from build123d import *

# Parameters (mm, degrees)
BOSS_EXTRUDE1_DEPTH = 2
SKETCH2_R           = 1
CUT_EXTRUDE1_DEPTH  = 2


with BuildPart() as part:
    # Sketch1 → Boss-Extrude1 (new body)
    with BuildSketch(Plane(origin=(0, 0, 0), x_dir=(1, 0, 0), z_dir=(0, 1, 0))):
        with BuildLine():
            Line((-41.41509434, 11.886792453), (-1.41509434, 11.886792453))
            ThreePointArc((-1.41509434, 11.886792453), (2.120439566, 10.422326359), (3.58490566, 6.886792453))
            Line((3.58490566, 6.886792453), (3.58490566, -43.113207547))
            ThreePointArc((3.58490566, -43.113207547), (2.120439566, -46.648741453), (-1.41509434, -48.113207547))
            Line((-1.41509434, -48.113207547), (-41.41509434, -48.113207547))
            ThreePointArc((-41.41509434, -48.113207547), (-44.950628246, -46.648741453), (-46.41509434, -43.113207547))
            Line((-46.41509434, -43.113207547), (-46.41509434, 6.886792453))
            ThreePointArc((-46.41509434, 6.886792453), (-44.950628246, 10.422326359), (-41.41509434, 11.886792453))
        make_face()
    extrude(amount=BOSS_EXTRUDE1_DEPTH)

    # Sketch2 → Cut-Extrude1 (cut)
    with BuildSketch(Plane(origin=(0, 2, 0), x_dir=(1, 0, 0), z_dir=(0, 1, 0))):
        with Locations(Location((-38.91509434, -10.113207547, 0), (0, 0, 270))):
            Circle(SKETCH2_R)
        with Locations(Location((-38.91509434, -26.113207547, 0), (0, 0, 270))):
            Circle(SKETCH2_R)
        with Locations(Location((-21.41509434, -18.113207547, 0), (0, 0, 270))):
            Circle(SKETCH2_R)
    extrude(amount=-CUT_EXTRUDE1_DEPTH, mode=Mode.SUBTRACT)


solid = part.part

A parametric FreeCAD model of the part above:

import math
import FreeCAD as App
import Part
import Sketcher

V = App.Vector
Q = App.Units.Quantity

doc = App.newDocument("Part")
body = doc.addObject("PartDesign::Body", "Body")

# Sketch on XZ plane
sketch1 = body.newObject("Sketcher::SketchObject", "Sketch")
sketch1.AttachmentSupport = (doc.getObject("XZ_Plane"), [""])
sketch1.MapMode = "FlatFace"
sketch1.addGeometry([
    Part.LineSegment(V(-1, -12, 0), V(-41, -12, 0)),  # 0
    Part.ArcOfCircle(Part.Circle(V(-41, -7, 0), V(0, 0, 1), 5), math.radians(180), math.radians(270)),  # 1
    Part.LineSegment(V(-46, -7, 0), V(-46, 43, 0)),  # 2
    Part.ArcOfCircle(Part.Circle(V(-41, 43, 0), V(0, 0, 1), 5), math.radians(90), math.radians(180)),  # 3
    Part.LineSegment(V(-41, 48, 0), V(-1, 48, 0)),  # 4
    Part.ArcOfCircle(Part.Circle(V(-1, 43, 0), V(0, 0, 1), 5), math.radians(0), math.radians(90)),  # 5
    Part.LineSegment(V(4, 43, 0), V(4, -7, 0)),  # 6
    Part.ArcOfCircle(Part.Circle(V(-1, -7, 0), V(0, 0, 1), 5), math.radians(-90), math.radians(0)),  # 7
], False)
sketch1.addConstraint([
    Sketcher.Constraint("Tangent", 0, 2, 1, 2),
    Sketcher.Constraint("Tangent", 1, 1, 2, 1),
    Sketcher.Constraint("Tangent", 2, 2, 3, 2),
    Sketcher.Constraint("Tangent", 3, 1, 4, 1),
    Sketcher.Constraint("Tangent", 4, 2, 5, 2),
    Sketcher.Constraint("Tangent", 5, 1, 6, 1),
    Sketcher.Constraint("Tangent", 6, 2, 7, 2),
    Sketcher.Constraint("Tangent", 7, 1, 0, 1),
    Sketcher.Constraint("Horizontal", 0),
    Sketcher.Constraint("Vertical", 2),
    Sketcher.Constraint("Horizontal", 4),
    Sketcher.Constraint("Vertical", 6),
    Sketcher.Constraint("Equal", 1, 3),
    Sketcher.Constraint("Equal", 3, 5),
    Sketcher.Constraint("Equal", 5, 7),
    Sketcher.Constraint("Radius", 1, Q("5 mm")),
    Sketcher.Constraint("DistanceX", 0, 2, 0, 1, Q("40 mm")),
    Sketcher.Constraint("DistanceY", 2, 1, 2, 2, Q("50 mm")),
    Sketcher.Constraint("DistanceX", 1, 3, -1, 1, Q("41.415094 mm")),
    Sketcher.Constraint("DistanceY", 1, 3, -1, 1, Q("6.886792 mm")),
])
pad1 = body.newObject("PartDesign::Pad", "Pad")
pad1.Profile = sketch1
pad1.Length = 2
pad1.Reversed = True

# Sketch on XZ plane
sketch2 = body.newObject("Sketcher::SketchObject", "Sketch001")
sketch2.AttachmentSupport = (doc.getObject("XZ_Plane"), [""])
sketch2.MapMode = "FlatFace"
sketch2.AttachmentOffset = App.Placement(V(0, 0, -2), App.Rotation())
sketch2.addGeometry([
    Part.Circle(V(-38.9, 10.1, 0), V(0, 0, 1), 1),
    Part.Circle(V(-38.9, 26.1, 0), V(0, 0, 1), 1),
    Part.Circle(V(-21.4, 18.1, 0), V(0, 0, 1), 1),
], False)
sketch2.addConstraint([
    Sketcher.Constraint("Equal", 0, 1),
    Sketcher.Constraint("Equal", 1, 2),
    Sketcher.Constraint("Vertical", 0, 3, 1, 3),
    Sketcher.Constraint("Diameter", 0, Q("2 mm")),
    Sketcher.Constraint("DistanceY", 0, 3, 1, 3, Q("16 mm")),
    Sketcher.Constraint("DistanceY", 0, 3, 2, 3, Q("8 mm")),
    Sketcher.Constraint("DistanceX", 0, 3, 2, 3, Q("17.5 mm")),
    Sketcher.Constraint("DistanceX", 0, 3, -1, 1, Q("38.915094 mm")),
    Sketcher.Constraint("DistanceY", -1, 1, 0, 3, Q("10.113208 mm")),
])
pocket1 = body.newObject("PartDesign::Pocket", "Pocket")
pocket1.Profile = sketch2
pocket1.Length = 2
pocket1.Reversed = True

doc.recompute()
